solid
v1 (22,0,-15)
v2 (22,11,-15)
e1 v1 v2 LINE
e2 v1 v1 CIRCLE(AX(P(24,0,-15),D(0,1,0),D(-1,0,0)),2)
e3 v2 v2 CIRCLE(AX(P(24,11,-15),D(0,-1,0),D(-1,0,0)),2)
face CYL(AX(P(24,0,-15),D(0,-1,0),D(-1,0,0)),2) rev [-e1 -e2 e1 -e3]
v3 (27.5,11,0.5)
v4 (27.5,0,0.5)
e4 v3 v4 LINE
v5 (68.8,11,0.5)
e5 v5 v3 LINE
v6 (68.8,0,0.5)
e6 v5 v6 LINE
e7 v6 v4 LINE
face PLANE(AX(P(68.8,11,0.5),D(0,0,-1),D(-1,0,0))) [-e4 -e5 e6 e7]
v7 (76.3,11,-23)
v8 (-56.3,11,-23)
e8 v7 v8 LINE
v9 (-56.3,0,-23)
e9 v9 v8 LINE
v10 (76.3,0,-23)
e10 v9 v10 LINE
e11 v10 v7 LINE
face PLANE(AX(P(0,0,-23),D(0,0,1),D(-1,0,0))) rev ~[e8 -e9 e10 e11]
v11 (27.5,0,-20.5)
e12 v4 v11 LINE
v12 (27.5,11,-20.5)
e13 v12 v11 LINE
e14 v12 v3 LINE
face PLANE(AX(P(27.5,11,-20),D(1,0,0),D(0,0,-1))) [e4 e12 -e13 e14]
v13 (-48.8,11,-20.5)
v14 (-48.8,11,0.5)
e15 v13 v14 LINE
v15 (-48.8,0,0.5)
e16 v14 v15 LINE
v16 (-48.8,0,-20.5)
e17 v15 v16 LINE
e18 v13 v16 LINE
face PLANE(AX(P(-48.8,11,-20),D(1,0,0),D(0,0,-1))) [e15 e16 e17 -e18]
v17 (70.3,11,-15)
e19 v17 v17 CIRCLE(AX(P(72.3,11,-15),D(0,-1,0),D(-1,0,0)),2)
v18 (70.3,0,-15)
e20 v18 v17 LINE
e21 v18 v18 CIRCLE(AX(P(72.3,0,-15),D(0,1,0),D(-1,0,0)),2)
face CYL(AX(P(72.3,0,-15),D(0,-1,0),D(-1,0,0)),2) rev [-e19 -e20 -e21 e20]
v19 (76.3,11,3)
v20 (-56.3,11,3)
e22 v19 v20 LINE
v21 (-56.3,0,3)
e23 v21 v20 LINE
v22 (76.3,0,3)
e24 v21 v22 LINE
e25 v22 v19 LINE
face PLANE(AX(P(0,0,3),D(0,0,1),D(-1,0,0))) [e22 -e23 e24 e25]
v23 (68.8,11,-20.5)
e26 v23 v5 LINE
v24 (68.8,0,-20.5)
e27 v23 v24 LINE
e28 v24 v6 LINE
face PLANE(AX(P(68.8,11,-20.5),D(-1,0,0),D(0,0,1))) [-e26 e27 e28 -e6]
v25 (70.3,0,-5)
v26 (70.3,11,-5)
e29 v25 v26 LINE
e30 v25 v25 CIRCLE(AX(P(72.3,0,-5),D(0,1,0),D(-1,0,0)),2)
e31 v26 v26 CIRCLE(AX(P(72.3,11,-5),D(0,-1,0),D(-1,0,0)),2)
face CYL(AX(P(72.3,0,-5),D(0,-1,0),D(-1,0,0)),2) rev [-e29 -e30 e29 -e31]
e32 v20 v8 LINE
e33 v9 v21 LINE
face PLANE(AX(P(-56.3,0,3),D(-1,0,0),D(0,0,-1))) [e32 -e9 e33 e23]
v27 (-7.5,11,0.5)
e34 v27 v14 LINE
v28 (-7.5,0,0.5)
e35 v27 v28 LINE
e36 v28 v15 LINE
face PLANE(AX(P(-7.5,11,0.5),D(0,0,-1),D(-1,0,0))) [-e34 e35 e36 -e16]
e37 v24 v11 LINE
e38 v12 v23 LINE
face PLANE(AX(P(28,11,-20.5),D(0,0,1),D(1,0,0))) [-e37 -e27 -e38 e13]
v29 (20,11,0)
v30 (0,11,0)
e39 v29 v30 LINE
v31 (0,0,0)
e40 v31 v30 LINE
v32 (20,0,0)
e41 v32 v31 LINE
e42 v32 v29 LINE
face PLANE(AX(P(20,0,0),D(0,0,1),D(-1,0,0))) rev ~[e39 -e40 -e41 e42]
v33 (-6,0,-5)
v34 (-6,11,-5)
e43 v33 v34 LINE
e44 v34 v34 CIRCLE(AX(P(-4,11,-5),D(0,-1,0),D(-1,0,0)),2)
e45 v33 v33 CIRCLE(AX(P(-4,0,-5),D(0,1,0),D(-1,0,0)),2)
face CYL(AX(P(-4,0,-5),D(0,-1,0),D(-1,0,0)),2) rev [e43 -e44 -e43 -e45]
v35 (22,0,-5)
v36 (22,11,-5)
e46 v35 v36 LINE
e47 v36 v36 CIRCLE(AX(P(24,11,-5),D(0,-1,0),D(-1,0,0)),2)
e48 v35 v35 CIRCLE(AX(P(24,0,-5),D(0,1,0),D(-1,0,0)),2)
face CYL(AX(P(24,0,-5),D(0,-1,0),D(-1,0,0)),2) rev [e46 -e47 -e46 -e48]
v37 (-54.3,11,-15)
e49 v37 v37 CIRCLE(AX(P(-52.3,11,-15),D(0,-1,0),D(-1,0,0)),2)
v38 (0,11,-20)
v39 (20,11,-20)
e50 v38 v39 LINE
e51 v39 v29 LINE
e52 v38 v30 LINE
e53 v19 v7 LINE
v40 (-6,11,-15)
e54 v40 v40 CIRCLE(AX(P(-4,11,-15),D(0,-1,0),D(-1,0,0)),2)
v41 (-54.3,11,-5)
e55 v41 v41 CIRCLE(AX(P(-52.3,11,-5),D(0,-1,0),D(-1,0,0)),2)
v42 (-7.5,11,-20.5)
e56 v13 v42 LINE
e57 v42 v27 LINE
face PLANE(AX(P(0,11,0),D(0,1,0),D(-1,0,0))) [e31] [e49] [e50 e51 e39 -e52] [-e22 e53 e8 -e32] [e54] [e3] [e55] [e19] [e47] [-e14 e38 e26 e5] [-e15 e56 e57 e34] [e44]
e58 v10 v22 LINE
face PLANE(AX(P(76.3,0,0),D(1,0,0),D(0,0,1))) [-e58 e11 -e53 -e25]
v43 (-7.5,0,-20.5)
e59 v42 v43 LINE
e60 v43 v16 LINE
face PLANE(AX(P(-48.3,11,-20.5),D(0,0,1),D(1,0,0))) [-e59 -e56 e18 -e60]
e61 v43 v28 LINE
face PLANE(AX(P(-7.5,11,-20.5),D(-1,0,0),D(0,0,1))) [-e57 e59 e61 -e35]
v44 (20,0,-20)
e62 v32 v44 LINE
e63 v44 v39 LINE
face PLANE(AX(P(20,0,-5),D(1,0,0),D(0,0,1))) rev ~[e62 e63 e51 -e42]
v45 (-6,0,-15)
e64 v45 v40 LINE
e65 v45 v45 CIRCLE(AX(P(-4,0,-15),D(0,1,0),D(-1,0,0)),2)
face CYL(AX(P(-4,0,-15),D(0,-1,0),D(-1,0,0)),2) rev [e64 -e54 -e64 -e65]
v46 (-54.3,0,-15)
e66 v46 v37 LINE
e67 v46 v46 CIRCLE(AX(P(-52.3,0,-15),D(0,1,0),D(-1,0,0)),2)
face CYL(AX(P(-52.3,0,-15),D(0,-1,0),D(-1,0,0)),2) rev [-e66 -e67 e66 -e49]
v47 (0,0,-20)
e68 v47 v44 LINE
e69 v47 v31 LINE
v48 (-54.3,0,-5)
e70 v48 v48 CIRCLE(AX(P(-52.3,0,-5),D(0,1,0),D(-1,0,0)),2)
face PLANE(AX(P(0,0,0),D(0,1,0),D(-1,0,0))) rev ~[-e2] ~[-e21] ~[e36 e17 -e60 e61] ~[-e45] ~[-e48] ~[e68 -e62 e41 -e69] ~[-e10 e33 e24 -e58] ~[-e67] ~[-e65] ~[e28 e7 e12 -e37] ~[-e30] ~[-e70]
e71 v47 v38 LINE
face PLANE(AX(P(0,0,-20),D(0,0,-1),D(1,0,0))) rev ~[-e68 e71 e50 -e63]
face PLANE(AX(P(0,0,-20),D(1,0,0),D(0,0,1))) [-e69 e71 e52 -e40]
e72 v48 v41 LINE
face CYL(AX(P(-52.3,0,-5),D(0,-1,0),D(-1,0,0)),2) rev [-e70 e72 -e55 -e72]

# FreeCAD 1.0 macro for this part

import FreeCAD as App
import Part
import Sketcher

V = App.Vector
Q = App.Units.Quantity

doc = App.newDocument("Part")
body = doc.addObject("PartDesign::Body", "Body")

# Sketch on XZ plane
sketch1 = body.newObject("Sketcher::SketchObject", "Sketch")
sketch1.AttachmentSupport = (doc.getObject("XZ_Plane"), [""])
sketch1.MapMode = "FlatFace"
sketch1.addGeometry([
    Part.LineSegment(V(-56.3, 3, 0), V(76.3, 3, 0)),  # 0
    Part.LineSegment(V(76.3, 3, 0), V(76.3, -23, 0)),  # 1
    Part.LineSegment(V(76.3, -23, 0), V(-56.3, -23, 0)),  # 2
    Part.LineSegment(V(-56.3, -23, 0), V(-56.3, 3, 0)),  # 3
    Part.LineSegment(V(-8, 0, 0), V(-48.3, 0, 0)),  # 4
    Part.LineSegment(V(-48.3, 0, 0), V(-48.3, -20, 0)),  # 5
    Part.LineSegment(V(-48.3, -20, 0), V(-8, -20, 0)),  # 6
    Part.LineSegment(V(-8, -20, 0), V(-8, 0, 0)),  # 7
    Part.LineSegment(V(20, 0, 0), V(0, 0, 0)),  # 8
    Part.LineSegment(V(0, 0, 0), V(0, -20, 0)),  # 9
    Part.LineSegment(V(0, -20, 0), V(20, -20, 0)),  # 10
    Part.LineSegment(V(20, -20, 0), V(20, 0, 0)),  # 11
    Part.Circle(V(-52.3, -5, 0), V(0, 0, 1), 2),  # 12
    Part.Circle(V(-52.3, -15, 0), V(0, 0, 1), 2),  # 13
    Part.Circle(V(-4, -5, 0), V(0, 0, 1), 2),  # 14
    Part.Circle(V(-4, -15, 0), V(0, 0, 1), 2),  # 15
    Part.LineSegment(V(68.3, 0, 0), V(28, 0, 0)),  # 16
    Part.LineSegment(V(28, 0, 0), V(28, -20, 0)),  # 17
    Part.LineSegment(V(28, -20, 0), V(68.3, -20, 0)),  # 18
    Part.LineSegment(V(68.3, -20, 0), V(68.3, 0, 0)),  # 19
    Part.Circle(V(24, -5, 0), V(0, 0, 1), 2),  # 20
    Part.Circle(V(24, -15, 0), V(0, 0, 1), 2),  # 21
    Part.Circle(V(72.3, -15, 0), V(0, 0, 1), 2),  # 22
    Part.Circle(V(72.3, -5, 0), V(0, 0, 1), 2),  # 23
], False)
sketch1.addConstraint([
    Sketcher.Constraint("Coincident", 0, 2, 1, 1),
    Sketcher.Constraint("Coincident", 1, 2, 2, 1),
    Sketcher.Constraint("Coincident", 2, 2, 3, 1),
    Sketcher.Constraint("Coincident", 3, 2, 0, 1),
    Sketcher.Constraint("Coincident", 4, 2, 5, 1),
    Sketcher.Constraint("Coincident", 5, 2, 6, 1),
    Sketcher.Constraint("Coincident", 6, 2, 7, 1),
    Sketcher.Constraint("Coincident", 7, 2, 4, 1),
    Sketcher.Constraint("Coincident", 8, 2, 9, 1),
    Sketcher.Constraint("Coincident", 9, 2, 10, 1),
    Sketcher.Constraint("Coincident", 10, 2, 11, 1),
    Sketcher.Constraint("Coincident", 11, 2, 8, 1),
    Sketcher.Constraint("Coincident", 16, 2, 17, 1),
    Sketcher.Constraint("Coincident", 17, 2, 18, 1),
    Sketcher.Constraint("Coincident", 18, 2, 19, 1),
    Sketcher.Constraint("Coincident", 19, 2, 16, 1),
    Sketcher.Constraint("Horizontal", 0),
    Sketcher.Constraint("Vertical", 1),
    Sketcher.Constraint("Horizontal", 2),
    Sketcher.Constraint("Vertical", 3),
    Sketcher.Constraint("Horizontal", 4),
    Sketcher.Constraint("Vertical", 5),
    Sketcher.Constraint("Horizontal", 6),
    Sketcher.Constraint("Vertical", 7),
    Sketcher.Constraint("Horizontal", 8),
    Sketcher.Constraint("Vertical", 9),
    Sketcher.Constraint("Horizontal", 10),
    Sketcher.Constraint("Vertical", 11),
    Sketcher.Constraint("Horizontal", 16),
    Sketcher.Constraint("Vertical", 17),
    Sketcher.Constraint("Horizontal", 18),
    Sketcher.Constraint("Vertical", 19),
    Sketcher.Constraint("Coincident", 8, 2, -1, 1),
    Sketcher.Constraint("Equal", 12, 13),
    Sketcher.Constraint("Equal", 13, 14),
    Sketcher.Constraint("Equal", 14, 15),
    Sketcher.Constraint("Equal", 15, 20),
    Sketcher.Constraint("Equal", 20, 21),
    Sketcher.Constraint("Equal", 21, 22),
    Sketcher.Constraint("Equal", 22, 23),
    Sketcher.Constraint("PointOnObject", 4, 2, -1),
    Sketcher.Constraint("PointOnObject", 16, 2, -1),
    Sketcher.Constraint("Horizontal", 12, 3, 14, 3),
    Sketcher.Constraint("Horizontal", 13, 3, 15, 3),
    Sketcher.Constraint("Horizontal", 14, 3, 20, 3),
    Sketcher.Constraint("Horizontal", 15, 3, 21, 3),
    Sketcher.Constraint("Horizontal", 21, 3, 22, 3),
    Sketcher.Constraint("Horizontal", 20, 3, 23, 3),
    Sketcher.Constraint("Horizontal", 6, 2, 9, 2),
    Sketcher.Constraint("Horizontal", 10, 2, 17, 2),
    Sketcher.Constraint("Vertical", 12, 3, 13, 3),
    Sketcher.Constraint("Vertical", 14, 3, 15, 3),
    Sketcher.Constraint("Vertical", 20, 3, 21, 3),
    Sketcher.Constraint("Vertical", 22, 3, 23, 3),
    Sketcher.Constraint("Equal", 6, 16),
    Sketcher.Constraint("Equal", 10, 5),
    Sketcher.Constraint("Diameter", 12, Q("4 mm")),
    Sketcher.Constraint("DistanceX", 8, 2, 8, 1, Q("20 mm")),
    Sketcher.Constraint("DistanceX", 4, 2, 4, 1, Q("40.3 mm")),
    Sketcher.Constraint("DistanceY", 12, 3, -1, 1, Q("5 mm")),
    Sketcher.Constraint("DistanceX", 14, 3, -1, 1, Q("4 mm")),
    Sketcher.Constraint("DistanceY", -1, 1, 0, 2, Q("3 mm")),
    Sketcher.Constraint("DistanceX", 6, 2, -1, 1, Q("8 mm")),
    Sketcher.Constraint("DistanceX", 23, 3, 0, 2, Q("4 mm")),
    Sketcher.Constraint("DistanceY", 1, 2, 22, 3, Q("8 mm")),
    Sketcher.Constraint("DistanceX", 2, 2, 13, 3, Q("4 mm")),
    Sketcher.Constraint("DistanceX", 12, 3, 4, 2, Q("4 mm")),
    Sketcher.Constraint("DistanceY", 5, 2, 13, 3, Q("5 mm")),
    Sketcher.Constraint("DistanceX", 10, 2, 21, 3, Q("4 mm")),
    Sketcher.Constraint("DistanceX", 20, 3, 16, 2, Q("4 mm")),
    Sketcher.Constraint("DistanceX", 18, 2, 22, 3, Q("4 mm")),
])
pad1 = body.newObject("PartDesign::Pad", "Pad")
pad1.Profile = sketch1
pad1.Length = 11
pad1.Reversed = True

# Sketch on XZ plane
sketch2 = body.newObject("Sketcher::SketchObject", "Sketch001")
sketch2.AttachmentSupport = (doc.getObject("XZ_Plane"), [""])
sketch2.MapMode = "FlatFace"
sketch2.AttachmentOffset = App.Placement(V(0, 0, -11), App.Rotation())
sketch2.addGeometry([
    Part.LineSegment(V(-8, -20, 0), V(-49, -20, 0)),  # 0
    Part.LineSegment(V(-49, -20, 0), V(-49, 0, 0)),  # 1
    Part.LineSegment(V(-49, 0, 0), V(-8, 0, 0)),  # 2
    Part.LineSegment(V(-8, 0, 0), V(-8, -20, 0)),  # 3
    Part.LineSegment(V(69, -20, 0), V(28, -20, 0)),  # 4
    Part.LineSegment(V(28, -20, 0), V(28, 0, 0)),  # 5
    Part.LineSegment(V(28, 0, 0), V(69, 0, 0)),  # 6
    Part.LineSegment(V(69, 0, 0), V(69, -20, 0)),  # 7
], False)
sketch2.addConstraint([
    Sketcher.Constraint("Coincident", 0, 2, 1, 1),
    Sketcher.Constraint("Coincident", 1, 2, 2, 1),
    Sketcher.Constraint("Coincident", 2, 2, 3, 1),
    Sketcher.Constraint("Coincident", 3, 2, 0, 1),
    Sketcher.Constraint("Coincident", 4, 2, 5, 1),
    Sketcher.Constraint("Coincident", 5, 2, 6, 1),
    Sketcher.Constraint("Coincident", 6, 2, 7, 1),
    Sketcher.Constraint("Coincident", 7, 2, 4, 1),
    Sketcher.Constraint("Horizontal", 0),
    Sketcher.Constraint("Vertical", 1),
    Sketcher.Constraint("Horizontal", 2),
    Sketcher.Constraint("Vertical", 3),
    Sketcher.Constraint("Horizontal", 4),
    Sketcher.Constraint("Vertical", 5),
    Sketcher.Constraint("Horizontal", 6),
    Sketcher.Constraint("Vertical", 7),
    Sketcher.Constraint("Horizontal", 3, 2, 4, 2),
    Sketcher.Constraint("Horizontal", 2, 2, 5, 2),
    Sketcher.Constraint("Equal", 2, 4),
    Sketcher.Constraint("DistanceY", 1, 1, 1, 2, Q("21 mm")),
    Sketcher.Constraint("DistanceX", 0, 2, 0, 1, Q("41.3 mm")),
    Sketcher.Constraint("DistanceY", -1, 1, 1, 2, Q("0.5 mm")),
    Sketcher.Constraint("DistanceX", 3, 2, 4, 2, Q("35 mm")),
    Sketcher.Constraint("DistanceX", 0, 2, -1, 1, Q("48.8 mm")),
])
pocket1 = body.newObject("PartDesign::Pocket", "Pocket")
pocket1.Profile = sketch2
pocket1.Length = 11
pocket1.Reversed = True

doc.recompute()
